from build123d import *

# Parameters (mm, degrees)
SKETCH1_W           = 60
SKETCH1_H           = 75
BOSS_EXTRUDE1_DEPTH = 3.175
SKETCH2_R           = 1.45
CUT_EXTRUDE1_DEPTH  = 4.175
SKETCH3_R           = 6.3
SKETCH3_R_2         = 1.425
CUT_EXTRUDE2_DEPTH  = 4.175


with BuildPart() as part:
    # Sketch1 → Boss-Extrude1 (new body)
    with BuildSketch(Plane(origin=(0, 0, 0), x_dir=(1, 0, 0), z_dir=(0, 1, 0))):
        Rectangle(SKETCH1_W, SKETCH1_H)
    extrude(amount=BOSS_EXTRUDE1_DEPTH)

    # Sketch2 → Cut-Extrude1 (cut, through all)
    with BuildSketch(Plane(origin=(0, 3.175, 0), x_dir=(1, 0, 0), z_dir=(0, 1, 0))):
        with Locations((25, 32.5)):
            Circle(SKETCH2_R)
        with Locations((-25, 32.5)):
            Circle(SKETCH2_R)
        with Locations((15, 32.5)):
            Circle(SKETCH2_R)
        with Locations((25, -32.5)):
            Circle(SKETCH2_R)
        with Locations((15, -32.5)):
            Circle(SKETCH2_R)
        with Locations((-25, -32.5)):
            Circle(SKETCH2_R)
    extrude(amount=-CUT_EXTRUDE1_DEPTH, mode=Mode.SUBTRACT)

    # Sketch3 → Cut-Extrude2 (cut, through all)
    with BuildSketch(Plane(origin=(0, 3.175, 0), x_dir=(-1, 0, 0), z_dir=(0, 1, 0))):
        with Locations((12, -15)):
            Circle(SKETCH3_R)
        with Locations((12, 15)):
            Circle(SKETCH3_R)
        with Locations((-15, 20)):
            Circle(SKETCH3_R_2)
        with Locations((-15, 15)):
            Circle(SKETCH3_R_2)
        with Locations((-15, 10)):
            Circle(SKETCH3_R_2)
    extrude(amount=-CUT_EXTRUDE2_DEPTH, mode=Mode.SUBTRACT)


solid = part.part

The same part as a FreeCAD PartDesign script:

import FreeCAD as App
import Part
import Sketcher
from FreeCAD import Vector
Q = App.Units.Quantity

doc = App.newDocument("Part")
body = doc.addObject("PartDesign::Body", "Body")

sketch1 = doc.addObject("Sketcher::SketchObject", "Sketch")
body.addObject(sketch1)
sketch1.AttachmentSupport = (doc.XZ_Plane, [""])
sketch1.MapMode = "FlatFace"
sketch1.addGeometry(Part.LineSegment(Vector(-30, -38, 0), Vector(-30, 38, 0)), False)
sketch1.addGeometry(Part.LineSegment(Vector(-30, 38, 0), Vector(30, 38, 0)), False)
sketch1.addGeometry(Part.LineSegment(Vector(30, 38, 0), Vector(30, -38, 0)), False)
sketch1.addGeometry(Part.LineSegment(Vector(30, -38, 0), Vector(-30, -38, 0)), False)
sketch1.addConstraint(Sketcher.Constraint("Coincident", 0, 2, 1, 1))
sketch1.addConstraint(Sketcher.Constraint("Coincident", 1, 2, 2, 1))
sketch1.addConstraint(Sketcher.Constraint("Coincident", 2, 2, 3, 1))
sketch1.addConstraint(Sketcher.Constraint("Coincident", 3, 2, 0, 1))
sketch1.addConstraint(Sketcher.Constraint("Vertical", 0))
sketch1.addConstraint(Sketcher.Constraint("Horizontal", 1))
sketch1.addConstraint(Sketcher.Constraint("Vertical", 2))
sketch1.addConstraint(Sketcher.Constraint("Horizontal", 3))
sketch1.addConstraint(Sketcher.Constraint("Symmetric", 0, 2, 2, 2, -1, 1))
sketch1.addConstraint(Sketcher.Constraint("DistanceX", 1, 1, 1, 2, Q("60 mm")))
sketch1.addConstraint(Sketcher.Constraint("DistanceY", 0, 1, 0, 2, Q("75 mm")))
pad1 = doc.addObject("PartDesign::Pad", "Pad")
body.addObject(pad1)
pad1.Profile = sketch1
pad1.Length = 3.175
pad1.Reversed = True

sketch2 = doc.addObject("Sketcher::SketchObject", "Sketch001")
body.addObject(sketch2)
sketch2.AttachmentSupport = (doc.XZ_Plane, [""])
sketch2.MapMode = "FlatFace"
sketch2.AttachmentOffset = App.Placement(Vector(0, 0, -3.175), App.Rotation())
sketch2.addGeometry(Part.Circle(Vector(25, -32.5, 0), Vector(0, 0, 1), 1.4), False)
sketch2.addGeometry(Part.Circle(Vector(-25, -32.5, 0), Vector(0, 0, 1), 1.4), False)
sketch2.addGeometry(Part.Circle(Vector(15, -32.5, 0), Vector(0, 0, 1), 1.4), False)
sketch2.addGeometry(Part.Circle(Vector(25, 32.5, 0), Vector(0, 0, 1), 1.4), False)
sketch2.addGeometry(Part.Circle(Vector(15, 32.5, 0), Vector(0, 0, 1), 1.4), False)
sketch2.addGeometry(Part.Circle(Vector(-25, 32.5, 0), Vector(0, 0, 1), 1.4), False)
sketch2.addConstraint(Sketcher.Constraint("Equal", 0, 1))
sketch2.addConstraint(Sketcher.Constraint("Equal", 1, 2))
sketch2.addConstraint(Sketcher.Constraint("Equal", 2, 3))
sketch2.addConstraint(Sketcher.Constraint("Equal", 3, 4))
sketch2.addConstraint(Sketcher.Constraint("Equal", 4, 5))
sketch2.addConstraint(Sketcher.Constraint("Symmetric", 1, 3, 3, 3, -1, 1))
sketch2.addConstraint(Sketcher.Constraint("Symmetric", 0, 3, 5, 3, -1, 1))
sketch2.addConstraint(Sketcher.Constraint("Symmetric", 0, 3, 1, 3, -2))
sketch2.addConstraint(Sketcher.Constraint("Symmetric", 2, 3, 4, 3, -1))
sketch2.addConstraint(Sketcher.Constraint("Horizontal", 1, 3, 2, 3))
sketch2.addConstraint(Sketcher.Constraint("Diameter", 0, Q("2.9 mm")))
sketch2.addConstraint(Sketcher.Constraint("DistanceX", -1, 1, 0, 3, Q("25 mm")))
sketch2.addConstraint(Sketcher.Constraint("DistanceX", -1, 1, 2, 3, Q("15 mm")))
sketch2.addConstraint(Sketcher.Constraint("DistanceY", 0, 3, 3, 3, Q("65 mm")))
pocket1 = doc.addObject("PartDesign::Pocket", "Pocket")
body.addObject(pocket1)
pocket1.Profile = sketch2
pocket1.Type = "ThroughAll"
pocket1.Reversed = True

sketch3 = doc.addObject("Sketcher::SketchObject", "Sketch002")
body.addObject(sketch3)
sketch3.AttachmentSupport = (doc.XZ_Plane, [""])
sketch3.MapMode = "FlatFace"
sketch3.AttachmentOffset = App.Placement(Vector(0, 0, -3.175), App.Rotation())
sketch3.addGeometry(Part.Circle(Vector(-12, -15, 0), Vector(0, 0, 1), 6.3), False)
sketch3.addGeometry(Part.Circle(Vector(-12, 15, 0), Vector(0, 0, 1), 6.3), False)
sketch3.addGeometry(Part.Circle(Vector(15, 20, 0), Vector(0, 0, 1), 1.4), False)
sketch3.addGeometry(Part.Circle(Vector(15, 15, 0), Vector(0, 0, 1), 1.4), False)
sketch3.addGeometry(Part.Circle(Vector(15, 10, 0), Vector(0, 0, 1), 1.4), False)
sketch3.addConstraint(Sketcher.Constraint("Equal", 0, 1))
sketch3.addConstraint(Sketcher.Constraint("Equal", 2, 3))
sketch3.addConstraint(Sketcher.Constraint("Equal", 3, 4))
sketch3.addConstraint(Sketcher.Constraint("Symmetric", 0, 3, 1, 3, -1))
sketch3.addConstraint(Sketcher.Constraint("Horizontal", 1, 3, 3, 3))
sketch3.addConstraint(Sketcher.Constraint("Vertical", 2, 3, 3, 3))
sketch3.addConstraint(Sketcher.Constraint("Vertical", 3, 3, 4, 3))
sketch3.addConstraint(Sketcher.Constraint("Diameter", 0, Q("12.6 mm")))
sketch3.addConstraint(Sketcher.Constraint("Diameter", 2, Q("2.85 mm")))
sketch3.addConstraint(Sketcher.Constraint("DistanceX", 0, 3, -1, 1, Q("12 mm")))
sketch3.addConstraint(Sketcher.Constraint("DistanceY", 0, 3, -1, 1, Q("15 mm")))
sketch3.addConstraint(Sketcher.Constraint("DistanceX", -1, 1, 2, 3, Q("15 mm")))
sketch3.addConstraint(Sketcher.Constraint("DistanceY", -1, 1, 2, 3, Q("20 mm")))
sketch3.addConstraint(Sketcher.Constraint("DistanceY", -1, 1, 4, 3, Q("10 mm")))
pocket2 = doc.addObject("PartDesign::Pocket", "Pocket001")
body.addObject(pocket2)
pocket2.Profile = sketch3
pocket2.Type = "ThroughAll"
pocket2.Reversed = True

doc.recompute()
